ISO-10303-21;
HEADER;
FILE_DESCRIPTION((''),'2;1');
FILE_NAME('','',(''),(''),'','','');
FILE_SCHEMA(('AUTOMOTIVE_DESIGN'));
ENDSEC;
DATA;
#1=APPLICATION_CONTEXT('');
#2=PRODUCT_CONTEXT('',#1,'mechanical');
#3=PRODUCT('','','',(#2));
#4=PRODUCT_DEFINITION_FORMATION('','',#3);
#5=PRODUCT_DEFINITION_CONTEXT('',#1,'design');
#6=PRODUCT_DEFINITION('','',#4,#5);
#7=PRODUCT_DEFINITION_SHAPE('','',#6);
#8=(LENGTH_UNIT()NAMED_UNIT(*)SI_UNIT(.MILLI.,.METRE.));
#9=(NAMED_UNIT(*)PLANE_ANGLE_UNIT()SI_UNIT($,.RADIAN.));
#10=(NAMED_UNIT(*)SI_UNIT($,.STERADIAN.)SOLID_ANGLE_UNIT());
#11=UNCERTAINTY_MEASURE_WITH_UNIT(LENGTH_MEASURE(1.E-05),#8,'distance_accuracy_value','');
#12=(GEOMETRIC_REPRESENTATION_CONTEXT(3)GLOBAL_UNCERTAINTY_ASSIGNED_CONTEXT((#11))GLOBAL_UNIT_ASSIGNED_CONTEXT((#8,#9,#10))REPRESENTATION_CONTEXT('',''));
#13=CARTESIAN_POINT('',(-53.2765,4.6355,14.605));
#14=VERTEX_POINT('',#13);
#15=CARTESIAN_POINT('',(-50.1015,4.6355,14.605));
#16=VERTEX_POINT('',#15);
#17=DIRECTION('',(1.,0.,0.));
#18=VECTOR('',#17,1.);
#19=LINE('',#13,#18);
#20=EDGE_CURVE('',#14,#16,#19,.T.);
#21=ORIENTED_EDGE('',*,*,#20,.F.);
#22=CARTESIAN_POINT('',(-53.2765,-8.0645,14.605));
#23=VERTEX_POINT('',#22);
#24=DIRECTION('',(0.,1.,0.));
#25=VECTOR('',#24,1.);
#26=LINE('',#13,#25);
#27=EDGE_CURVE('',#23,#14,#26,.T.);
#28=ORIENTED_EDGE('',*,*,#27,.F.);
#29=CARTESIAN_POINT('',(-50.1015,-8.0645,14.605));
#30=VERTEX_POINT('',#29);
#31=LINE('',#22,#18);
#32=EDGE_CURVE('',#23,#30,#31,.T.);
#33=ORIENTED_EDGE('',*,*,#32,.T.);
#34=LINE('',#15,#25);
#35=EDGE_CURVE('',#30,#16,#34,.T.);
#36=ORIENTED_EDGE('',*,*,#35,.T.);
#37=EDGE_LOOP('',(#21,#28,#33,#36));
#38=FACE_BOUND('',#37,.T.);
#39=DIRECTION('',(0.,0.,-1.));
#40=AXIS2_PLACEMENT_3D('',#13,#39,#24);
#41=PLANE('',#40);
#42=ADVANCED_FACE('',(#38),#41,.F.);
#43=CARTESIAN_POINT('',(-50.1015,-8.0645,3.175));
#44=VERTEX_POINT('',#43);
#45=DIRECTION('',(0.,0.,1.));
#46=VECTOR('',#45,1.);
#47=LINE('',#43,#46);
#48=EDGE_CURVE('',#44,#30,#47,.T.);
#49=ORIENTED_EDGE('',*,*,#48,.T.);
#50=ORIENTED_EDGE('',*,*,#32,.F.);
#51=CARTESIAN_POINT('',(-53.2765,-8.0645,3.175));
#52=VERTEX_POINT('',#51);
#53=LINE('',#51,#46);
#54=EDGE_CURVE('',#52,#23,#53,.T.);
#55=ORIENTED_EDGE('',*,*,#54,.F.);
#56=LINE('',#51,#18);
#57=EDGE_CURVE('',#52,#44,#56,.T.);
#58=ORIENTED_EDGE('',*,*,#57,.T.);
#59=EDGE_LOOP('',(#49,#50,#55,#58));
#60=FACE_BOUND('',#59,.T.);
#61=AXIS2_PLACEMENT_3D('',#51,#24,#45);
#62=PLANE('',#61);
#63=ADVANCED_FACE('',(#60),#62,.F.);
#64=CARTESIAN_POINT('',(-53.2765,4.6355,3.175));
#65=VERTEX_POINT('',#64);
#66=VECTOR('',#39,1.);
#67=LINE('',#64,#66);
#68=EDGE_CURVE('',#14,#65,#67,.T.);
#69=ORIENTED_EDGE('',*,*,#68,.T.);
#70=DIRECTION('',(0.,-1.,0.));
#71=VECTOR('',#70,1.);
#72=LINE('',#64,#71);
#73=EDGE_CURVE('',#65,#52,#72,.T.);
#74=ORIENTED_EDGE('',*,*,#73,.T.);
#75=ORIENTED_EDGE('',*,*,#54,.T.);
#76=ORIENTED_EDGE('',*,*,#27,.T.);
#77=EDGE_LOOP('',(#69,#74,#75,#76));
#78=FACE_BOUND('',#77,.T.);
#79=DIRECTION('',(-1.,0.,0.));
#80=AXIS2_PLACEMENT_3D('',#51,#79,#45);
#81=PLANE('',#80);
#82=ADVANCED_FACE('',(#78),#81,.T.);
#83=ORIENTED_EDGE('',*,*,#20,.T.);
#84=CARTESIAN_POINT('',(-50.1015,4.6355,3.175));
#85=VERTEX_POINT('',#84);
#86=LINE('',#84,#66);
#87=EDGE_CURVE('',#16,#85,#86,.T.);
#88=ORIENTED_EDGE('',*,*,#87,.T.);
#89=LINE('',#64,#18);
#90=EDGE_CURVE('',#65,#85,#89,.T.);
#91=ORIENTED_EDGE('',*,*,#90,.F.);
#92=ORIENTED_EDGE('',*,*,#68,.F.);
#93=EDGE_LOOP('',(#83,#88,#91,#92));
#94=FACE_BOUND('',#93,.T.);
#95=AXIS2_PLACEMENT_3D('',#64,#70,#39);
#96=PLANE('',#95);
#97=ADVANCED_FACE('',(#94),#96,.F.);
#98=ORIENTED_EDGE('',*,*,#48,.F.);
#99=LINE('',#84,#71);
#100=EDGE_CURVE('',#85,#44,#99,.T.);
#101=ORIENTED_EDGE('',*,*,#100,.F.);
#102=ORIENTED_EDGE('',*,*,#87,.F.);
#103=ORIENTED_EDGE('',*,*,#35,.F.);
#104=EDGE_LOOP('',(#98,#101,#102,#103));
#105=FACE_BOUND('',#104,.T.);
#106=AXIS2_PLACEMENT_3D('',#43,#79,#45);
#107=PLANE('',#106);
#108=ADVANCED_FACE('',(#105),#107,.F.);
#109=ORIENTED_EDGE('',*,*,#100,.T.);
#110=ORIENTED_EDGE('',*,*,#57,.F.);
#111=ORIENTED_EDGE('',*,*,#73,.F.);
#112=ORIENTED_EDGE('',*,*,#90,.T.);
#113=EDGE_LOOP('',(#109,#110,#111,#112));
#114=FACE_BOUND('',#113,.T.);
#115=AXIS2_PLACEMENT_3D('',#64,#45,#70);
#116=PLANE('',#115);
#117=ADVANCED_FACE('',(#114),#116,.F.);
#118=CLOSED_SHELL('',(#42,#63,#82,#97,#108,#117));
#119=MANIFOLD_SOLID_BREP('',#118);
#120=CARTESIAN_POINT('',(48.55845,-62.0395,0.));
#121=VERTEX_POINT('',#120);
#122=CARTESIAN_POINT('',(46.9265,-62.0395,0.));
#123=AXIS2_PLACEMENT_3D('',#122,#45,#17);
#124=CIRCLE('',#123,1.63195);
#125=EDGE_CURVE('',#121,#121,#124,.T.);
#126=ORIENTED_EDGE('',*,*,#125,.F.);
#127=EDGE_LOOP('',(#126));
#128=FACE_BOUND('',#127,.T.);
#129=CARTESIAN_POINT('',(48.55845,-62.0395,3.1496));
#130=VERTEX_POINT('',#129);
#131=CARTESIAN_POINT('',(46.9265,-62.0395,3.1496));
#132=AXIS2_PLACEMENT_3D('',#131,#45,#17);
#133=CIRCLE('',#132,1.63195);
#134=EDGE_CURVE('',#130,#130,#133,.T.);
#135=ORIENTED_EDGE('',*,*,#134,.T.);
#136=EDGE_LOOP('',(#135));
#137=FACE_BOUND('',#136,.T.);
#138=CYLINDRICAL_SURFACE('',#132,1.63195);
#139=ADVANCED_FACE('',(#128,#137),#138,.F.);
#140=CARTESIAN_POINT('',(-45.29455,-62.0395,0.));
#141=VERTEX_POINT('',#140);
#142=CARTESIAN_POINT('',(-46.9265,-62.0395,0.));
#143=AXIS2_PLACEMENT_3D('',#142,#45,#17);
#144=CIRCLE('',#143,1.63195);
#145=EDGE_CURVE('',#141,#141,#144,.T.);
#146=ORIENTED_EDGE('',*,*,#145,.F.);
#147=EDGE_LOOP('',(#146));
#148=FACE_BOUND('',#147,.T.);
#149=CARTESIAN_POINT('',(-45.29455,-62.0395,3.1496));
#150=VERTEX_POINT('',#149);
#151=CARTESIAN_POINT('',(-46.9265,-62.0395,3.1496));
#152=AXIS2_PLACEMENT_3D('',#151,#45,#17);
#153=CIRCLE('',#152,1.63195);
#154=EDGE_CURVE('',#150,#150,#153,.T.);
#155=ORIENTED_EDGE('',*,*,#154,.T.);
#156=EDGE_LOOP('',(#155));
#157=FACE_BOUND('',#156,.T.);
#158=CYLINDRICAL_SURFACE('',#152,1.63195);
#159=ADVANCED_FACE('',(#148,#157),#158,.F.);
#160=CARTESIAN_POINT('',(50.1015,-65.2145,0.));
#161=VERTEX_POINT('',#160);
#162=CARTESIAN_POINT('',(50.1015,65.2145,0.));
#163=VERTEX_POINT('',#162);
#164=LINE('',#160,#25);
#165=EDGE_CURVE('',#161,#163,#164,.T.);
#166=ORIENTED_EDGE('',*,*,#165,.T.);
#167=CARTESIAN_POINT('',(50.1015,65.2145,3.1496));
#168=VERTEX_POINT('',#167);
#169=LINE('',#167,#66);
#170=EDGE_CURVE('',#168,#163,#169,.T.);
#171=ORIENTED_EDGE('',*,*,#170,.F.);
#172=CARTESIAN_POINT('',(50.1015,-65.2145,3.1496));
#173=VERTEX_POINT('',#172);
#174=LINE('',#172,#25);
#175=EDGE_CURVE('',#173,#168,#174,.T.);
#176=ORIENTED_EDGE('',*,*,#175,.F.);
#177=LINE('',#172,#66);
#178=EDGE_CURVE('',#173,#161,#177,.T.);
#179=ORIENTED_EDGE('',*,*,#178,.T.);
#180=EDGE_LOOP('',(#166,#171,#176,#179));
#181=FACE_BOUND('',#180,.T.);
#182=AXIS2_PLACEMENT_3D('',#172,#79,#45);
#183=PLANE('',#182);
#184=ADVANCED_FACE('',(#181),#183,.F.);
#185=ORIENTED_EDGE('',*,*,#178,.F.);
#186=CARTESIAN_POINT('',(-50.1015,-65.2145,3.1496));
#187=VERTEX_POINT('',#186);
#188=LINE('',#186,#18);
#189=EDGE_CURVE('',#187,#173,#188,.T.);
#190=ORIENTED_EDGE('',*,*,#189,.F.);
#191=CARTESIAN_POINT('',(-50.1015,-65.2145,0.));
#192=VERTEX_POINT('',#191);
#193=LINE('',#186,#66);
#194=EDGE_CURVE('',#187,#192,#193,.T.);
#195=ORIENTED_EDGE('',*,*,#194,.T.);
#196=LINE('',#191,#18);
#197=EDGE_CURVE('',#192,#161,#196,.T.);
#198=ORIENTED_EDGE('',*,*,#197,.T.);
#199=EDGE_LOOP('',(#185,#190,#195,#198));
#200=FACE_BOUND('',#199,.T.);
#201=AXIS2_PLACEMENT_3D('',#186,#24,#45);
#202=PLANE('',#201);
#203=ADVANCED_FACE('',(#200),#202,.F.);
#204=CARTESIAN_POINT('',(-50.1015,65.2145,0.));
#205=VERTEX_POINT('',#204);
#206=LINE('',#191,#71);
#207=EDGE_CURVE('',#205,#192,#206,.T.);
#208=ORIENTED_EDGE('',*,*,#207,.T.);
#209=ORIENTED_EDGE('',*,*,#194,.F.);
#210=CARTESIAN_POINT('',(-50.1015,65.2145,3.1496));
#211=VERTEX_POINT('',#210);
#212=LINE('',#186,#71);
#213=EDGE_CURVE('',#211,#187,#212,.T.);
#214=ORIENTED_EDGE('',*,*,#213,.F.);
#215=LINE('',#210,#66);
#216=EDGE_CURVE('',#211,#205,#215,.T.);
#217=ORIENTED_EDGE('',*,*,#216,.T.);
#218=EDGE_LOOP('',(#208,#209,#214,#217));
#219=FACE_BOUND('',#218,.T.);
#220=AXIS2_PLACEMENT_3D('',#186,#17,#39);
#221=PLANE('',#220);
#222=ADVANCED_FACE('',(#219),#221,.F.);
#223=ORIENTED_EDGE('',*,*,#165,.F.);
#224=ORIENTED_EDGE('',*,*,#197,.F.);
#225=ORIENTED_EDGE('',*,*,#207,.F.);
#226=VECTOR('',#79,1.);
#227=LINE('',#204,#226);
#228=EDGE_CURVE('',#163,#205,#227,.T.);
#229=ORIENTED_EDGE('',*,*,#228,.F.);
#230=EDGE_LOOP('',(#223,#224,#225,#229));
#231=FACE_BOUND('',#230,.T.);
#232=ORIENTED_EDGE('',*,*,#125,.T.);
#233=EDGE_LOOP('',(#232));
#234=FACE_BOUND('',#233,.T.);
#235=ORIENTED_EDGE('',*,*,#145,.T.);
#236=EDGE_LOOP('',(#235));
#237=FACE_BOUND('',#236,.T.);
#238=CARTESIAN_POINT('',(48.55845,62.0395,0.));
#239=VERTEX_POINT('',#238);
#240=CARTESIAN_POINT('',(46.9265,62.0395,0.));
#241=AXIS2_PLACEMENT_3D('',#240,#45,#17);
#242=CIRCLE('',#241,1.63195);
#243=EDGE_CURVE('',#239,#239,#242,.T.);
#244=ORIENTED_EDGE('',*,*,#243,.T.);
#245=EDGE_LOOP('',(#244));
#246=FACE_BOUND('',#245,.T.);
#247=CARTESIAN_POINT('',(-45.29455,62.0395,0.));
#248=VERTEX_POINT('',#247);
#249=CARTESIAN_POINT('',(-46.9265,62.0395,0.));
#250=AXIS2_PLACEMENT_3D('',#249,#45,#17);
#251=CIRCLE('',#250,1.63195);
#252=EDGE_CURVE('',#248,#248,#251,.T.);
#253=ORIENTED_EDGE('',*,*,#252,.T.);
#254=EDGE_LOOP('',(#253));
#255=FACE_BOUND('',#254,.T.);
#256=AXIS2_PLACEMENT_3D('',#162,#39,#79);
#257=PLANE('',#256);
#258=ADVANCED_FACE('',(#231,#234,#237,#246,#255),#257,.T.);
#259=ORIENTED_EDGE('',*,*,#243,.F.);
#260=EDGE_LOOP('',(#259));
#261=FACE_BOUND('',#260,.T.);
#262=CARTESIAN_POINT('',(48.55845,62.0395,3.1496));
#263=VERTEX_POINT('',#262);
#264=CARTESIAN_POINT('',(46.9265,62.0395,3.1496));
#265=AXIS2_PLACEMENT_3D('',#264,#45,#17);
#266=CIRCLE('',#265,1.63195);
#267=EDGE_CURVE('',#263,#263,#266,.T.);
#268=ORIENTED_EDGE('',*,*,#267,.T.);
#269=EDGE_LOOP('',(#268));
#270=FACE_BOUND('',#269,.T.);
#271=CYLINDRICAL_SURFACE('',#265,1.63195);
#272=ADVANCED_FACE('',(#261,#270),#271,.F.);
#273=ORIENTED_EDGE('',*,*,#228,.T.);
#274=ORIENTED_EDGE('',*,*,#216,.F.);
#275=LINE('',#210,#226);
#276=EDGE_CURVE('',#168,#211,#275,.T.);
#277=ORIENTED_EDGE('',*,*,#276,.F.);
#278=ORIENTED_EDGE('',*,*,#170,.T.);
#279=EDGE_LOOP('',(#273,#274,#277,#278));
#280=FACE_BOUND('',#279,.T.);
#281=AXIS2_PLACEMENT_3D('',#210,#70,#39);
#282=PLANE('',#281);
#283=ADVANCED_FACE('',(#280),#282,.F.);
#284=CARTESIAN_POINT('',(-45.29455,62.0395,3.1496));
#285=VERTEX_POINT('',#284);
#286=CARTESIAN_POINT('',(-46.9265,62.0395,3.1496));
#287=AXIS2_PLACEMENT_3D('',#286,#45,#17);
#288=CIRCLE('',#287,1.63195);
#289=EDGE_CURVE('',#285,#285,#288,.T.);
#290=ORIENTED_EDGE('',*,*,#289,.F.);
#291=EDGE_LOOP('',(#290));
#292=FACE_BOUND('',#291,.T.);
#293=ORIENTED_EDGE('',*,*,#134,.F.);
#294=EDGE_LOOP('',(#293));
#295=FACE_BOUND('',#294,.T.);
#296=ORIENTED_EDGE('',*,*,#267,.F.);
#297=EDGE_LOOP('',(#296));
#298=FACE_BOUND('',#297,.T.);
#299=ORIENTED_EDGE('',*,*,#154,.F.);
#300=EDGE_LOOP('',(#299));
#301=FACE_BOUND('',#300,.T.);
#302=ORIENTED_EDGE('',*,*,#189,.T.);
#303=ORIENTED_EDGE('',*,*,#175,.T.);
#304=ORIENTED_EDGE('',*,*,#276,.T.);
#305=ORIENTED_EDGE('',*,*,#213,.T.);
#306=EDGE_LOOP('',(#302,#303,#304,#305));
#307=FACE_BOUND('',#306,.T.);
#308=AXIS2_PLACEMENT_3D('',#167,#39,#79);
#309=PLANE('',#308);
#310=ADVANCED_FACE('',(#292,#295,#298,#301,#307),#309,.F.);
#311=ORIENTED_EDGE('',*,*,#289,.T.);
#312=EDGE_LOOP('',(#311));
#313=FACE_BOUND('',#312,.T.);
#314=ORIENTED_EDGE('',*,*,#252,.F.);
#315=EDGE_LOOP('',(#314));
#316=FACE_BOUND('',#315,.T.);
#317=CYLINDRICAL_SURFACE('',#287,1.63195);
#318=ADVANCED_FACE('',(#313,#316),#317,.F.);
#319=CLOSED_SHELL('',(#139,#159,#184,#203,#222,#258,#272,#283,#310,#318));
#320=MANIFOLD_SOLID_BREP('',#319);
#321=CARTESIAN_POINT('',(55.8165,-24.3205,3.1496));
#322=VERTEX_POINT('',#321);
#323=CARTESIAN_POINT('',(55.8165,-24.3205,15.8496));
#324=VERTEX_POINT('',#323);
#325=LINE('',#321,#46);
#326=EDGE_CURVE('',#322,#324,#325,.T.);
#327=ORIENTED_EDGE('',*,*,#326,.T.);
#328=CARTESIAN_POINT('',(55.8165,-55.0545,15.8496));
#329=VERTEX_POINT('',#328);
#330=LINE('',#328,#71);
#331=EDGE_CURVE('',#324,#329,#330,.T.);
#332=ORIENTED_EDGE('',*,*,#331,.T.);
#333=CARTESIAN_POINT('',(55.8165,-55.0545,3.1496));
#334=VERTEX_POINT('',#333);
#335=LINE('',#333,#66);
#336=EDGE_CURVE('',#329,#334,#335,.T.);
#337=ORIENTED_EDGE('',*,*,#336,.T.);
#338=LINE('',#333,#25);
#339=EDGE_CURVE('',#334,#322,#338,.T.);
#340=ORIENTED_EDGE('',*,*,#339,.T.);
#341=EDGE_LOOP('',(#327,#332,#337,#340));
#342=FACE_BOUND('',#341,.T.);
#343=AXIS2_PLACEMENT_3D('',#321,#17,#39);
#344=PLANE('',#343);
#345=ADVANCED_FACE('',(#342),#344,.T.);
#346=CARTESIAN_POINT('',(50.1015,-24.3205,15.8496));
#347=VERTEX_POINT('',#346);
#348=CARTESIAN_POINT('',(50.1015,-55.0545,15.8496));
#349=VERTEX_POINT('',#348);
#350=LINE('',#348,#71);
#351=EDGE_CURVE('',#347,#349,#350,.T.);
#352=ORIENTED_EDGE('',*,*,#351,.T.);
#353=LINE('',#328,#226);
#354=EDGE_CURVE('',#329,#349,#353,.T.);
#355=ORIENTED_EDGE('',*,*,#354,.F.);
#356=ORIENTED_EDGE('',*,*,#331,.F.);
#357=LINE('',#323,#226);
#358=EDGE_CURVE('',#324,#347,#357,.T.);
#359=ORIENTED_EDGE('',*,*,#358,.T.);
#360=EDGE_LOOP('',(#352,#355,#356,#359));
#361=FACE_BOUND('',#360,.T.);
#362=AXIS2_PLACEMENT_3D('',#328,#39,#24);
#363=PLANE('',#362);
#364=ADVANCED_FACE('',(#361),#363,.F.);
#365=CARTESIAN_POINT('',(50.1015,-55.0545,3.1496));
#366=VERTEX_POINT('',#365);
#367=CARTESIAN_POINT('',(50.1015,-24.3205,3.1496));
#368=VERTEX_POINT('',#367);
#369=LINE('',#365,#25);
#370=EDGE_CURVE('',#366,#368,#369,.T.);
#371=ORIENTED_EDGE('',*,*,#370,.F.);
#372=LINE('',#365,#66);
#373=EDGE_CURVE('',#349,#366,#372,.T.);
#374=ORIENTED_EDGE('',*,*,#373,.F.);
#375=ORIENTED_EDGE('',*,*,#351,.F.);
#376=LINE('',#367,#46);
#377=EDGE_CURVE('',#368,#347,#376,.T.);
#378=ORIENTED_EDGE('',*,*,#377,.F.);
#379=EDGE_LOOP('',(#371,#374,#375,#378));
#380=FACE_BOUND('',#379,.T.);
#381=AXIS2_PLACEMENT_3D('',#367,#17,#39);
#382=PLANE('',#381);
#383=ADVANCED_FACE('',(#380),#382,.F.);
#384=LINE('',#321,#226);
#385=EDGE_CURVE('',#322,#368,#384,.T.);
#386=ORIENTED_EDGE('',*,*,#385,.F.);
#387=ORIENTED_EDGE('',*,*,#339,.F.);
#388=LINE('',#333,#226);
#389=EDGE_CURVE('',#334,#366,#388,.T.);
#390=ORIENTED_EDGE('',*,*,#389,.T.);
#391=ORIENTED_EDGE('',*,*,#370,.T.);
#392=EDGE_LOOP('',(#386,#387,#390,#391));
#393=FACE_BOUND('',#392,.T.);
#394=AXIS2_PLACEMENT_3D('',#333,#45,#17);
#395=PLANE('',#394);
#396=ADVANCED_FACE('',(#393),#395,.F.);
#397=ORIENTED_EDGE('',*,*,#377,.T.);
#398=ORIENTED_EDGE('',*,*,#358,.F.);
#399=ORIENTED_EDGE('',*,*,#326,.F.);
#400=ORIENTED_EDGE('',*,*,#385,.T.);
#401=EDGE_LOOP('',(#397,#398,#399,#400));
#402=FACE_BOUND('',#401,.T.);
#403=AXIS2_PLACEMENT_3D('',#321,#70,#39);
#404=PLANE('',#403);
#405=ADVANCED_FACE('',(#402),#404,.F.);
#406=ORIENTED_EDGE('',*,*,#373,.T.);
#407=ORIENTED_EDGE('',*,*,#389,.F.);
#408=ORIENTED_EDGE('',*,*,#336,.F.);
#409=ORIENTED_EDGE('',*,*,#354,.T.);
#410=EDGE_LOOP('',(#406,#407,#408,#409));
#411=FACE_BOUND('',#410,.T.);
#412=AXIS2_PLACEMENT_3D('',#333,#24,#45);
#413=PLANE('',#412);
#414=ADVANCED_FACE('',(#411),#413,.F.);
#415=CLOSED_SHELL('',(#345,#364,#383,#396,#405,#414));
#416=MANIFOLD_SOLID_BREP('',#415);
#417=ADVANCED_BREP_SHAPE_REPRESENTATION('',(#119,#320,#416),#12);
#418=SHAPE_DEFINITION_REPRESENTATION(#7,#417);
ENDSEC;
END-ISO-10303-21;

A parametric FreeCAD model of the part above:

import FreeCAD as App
import Part
import Sketcher
from FreeCAD import Vector
Q = App.Units.Quantity


def add_polygon(sketch, points):
    """Adds a closed chain of lines whose ends are joined by coincident constraints."""
    first, n = sketch.GeometryCount, len(points)
    for a, b in zip(points, points[1:] + points[:1]):
        sketch.addGeometry(Part.LineSegment(App.Vector(*a, 0), App.Vector(*b, 0)), False)
    for i in range(n):
        sketch.addConstraint(Sketcher.Constraint("Coincident", first + i, 2, first + (i + 1) % n, 1))

doc = App.newDocument("Part")
body = doc.addObject("PartDesign::Body", "Body")

# Sketch on XY plane
sketch1 = body.newObject("Sketcher::SketchObject", "Sketch")
sketch1.AttachmentSupport = (doc.getObject("XY_Plane"), [""])
sketch1.MapMode = "FlatFace"
add_polygon(sketch1, [(-50.1015, 65.2145), (-50.1015, -65.2145), (50.1015, -65.2145), (50.1015, 65.2145)])  # lines 0-3
sketch1.addConstraint(Sketcher.Constraint("Vertical", 0))
sketch1.addConstraint(Sketcher.Constraint("Horizontal", 1))
sketch1.addConstraint(Sketcher.Constraint("Vertical", 2))
sketch1.addConstraint(Sketcher.Constraint("Horizontal", 3))
sketch1.addConstraint(Sketcher.Constraint("Symmetric", 0, 2, 2, 2, -1, 1))
sketch1.addConstraint(Sketcher.Constraint("DistanceX", 1, 1, 1, 2, Q("3.945 in")))
sketch1.addConstraint(Sketcher.Constraint("DistanceY", 0, 2, 0, 1, Q("5.135 in")))
pad1 = body.newObject("PartDesign::Pad", "Pad")
pad1.Profile = sketch1
pad1.Length = Q("0.124 in")

# Sketch on YZ plane
sketch2 = body.newObject("Sketcher::SketchObject", "Sketch001")
sketch2.AttachmentSupport = (doc.getObject("YZ_Plane"), [""])
sketch2.MapMode = "FlatFace"
sketch2.AttachmentOffset = App.Placement(Vector(0, 0, -1.8475 * 25.4), App.Rotation())
add_polygon(sketch2, [(62.0395, 0), (62.0395, 3.1496), (60.40755, 3.1496), (60.40755, 0)])  # lines 0-3
sketch2.addGeometry(Part.LineSegment(Vector(62.0395, 3.1496, 0), Vector(62.0395, 0, 0)), True)  # axis
sketch2.addConstraint(Sketcher.Constraint("Vertical", 0))
sketch2.addConstraint(Sketcher.Constraint("Horizontal", 1))
sketch2.addConstraint(Sketcher.Constraint("Vertical", 2))
sketch2.addConstraint(Sketcher.Constraint("Horizontal", 3))
sketch2.addConstraint(Sketcher.Constraint("Vertical", 4))
sketch2.addConstraint(Sketcher.Constraint("Coincident", 4, 1, 0, 2))
sketch2.addConstraint(Sketcher.Constraint("PointOnObject", 2, 2, -1))
sketch2.addConstraint(Sketcher.Constraint("PointOnObject", 4, 2, -1))
sketch2.addConstraint(Sketcher.Constraint("DistanceY", 0, 1, 0, 2, Q("0.124 in")))
sketch2.addConstraint(Sketcher.Constraint("DistanceX", -1, 1, 0, 2, Q("2.4425 in")))
sketch2.addConstraint(Sketcher.Constraint("DistanceX", 1, 2, 1, 1, 1.63195))
groove = body.newObject("PartDesign::Groove", "Groove")
groove.Profile = sketch2
groove.ReferenceAxis = (sketch2, ["Axis0"])
groove.Angle = 360
doc.recompute()

linearpattern = body.newObject("PartDesign::LinearPattern", "LinearPattern")
linearpattern.Originals = [groove]
linearpattern.Direction = (doc.getObject("Y_Axis"), [""])
linearpattern.Mode = "offset"
linearpattern.Offset = Q("4.885 in")
linearpattern.Occurrences = 2
linearpattern.Reversed = True
body.Tip = linearpattern
doc.recompute()

mirrored = body.newObject("PartDesign::Mirrored", "Mirrored")
mirrored.Originals = [groove]
mirrored.MirrorPlane = (doc.getObject("YZ_Plane"), [""])
body.Tip = mirrored

# Sketch on YZ plane
sketch3 = body.newObject("Sketcher::SketchObject", "Sketch002")
sketch3.AttachmentSupport = (doc.getObject("YZ_Plane"), [""])
sketch3.MapMode = "FlatFace"
sketch3.AttachmentOffset = App.Placement(Vector(0, 0, 1.8475 * 25.4), App.Rotation())
add_polygon(sketch3, [(-62.0395, 3.1496), (-62.0395, 0), (-63.67145, 0), (-63.67145, 3.1496)])  # lines 0-3
sketch3.addGeometry(Part.LineSegment(Vector(-62.0395, 0, 0), Vector(-62.0395, 3.1496, 0)), True)  # axis
sketch3.addConstraint(Sketcher.Constraint("Vertical", 0))
sketch3.addConstraint(Sketcher.Constraint("Horizontal", 1))
sketch3.addConstraint(Sketcher.Constraint("Vertical", 2))
sketch3.addConstraint(Sketcher.Constraint("Horizontal", 3))
sketch3.addConstraint(Sketcher.Constraint("Vertical", 4))
sketch3.addConstraint(Sketcher.Constraint("Coincident", 4, 1, 0, 2))
sketch3.addConstraint(Sketcher.Constraint("PointOnObject", 0, 2, -1))
sketch3.addConstraint(Sketcher.Constraint("Horizontal", 2, 2, 4, 2))
sketch3.addConstraint(Sketcher.Constraint("DistanceY", 0, 2, 0, 1, Q("0.124 in")))
sketch3.addConstraint(Sketcher.Constraint("DistanceX", 0, 2, -1, 1, Q("2.4425 in")))
sketch3.addConstraint(Sketcher.Constraint("DistanceX", 1, 2, 1, 1, 1.63195))
groove2 = body.newObject("PartDesign::Groove", "Groove001")
groove2.Profile = sketch3
groove2.ReferenceAxis = (sketch3, ["Axis0"])
groove2.Angle = 360
body2 = doc.addObject("PartDesign::Body", "Body001")

# Sketch on YZ plane
sketch4 = body2.newObject("Sketcher::SketchObject", "Sketch003")
sketch4.AttachmentSupport = (doc.getObject("YZ_Plane001"), [""])
sketch4.MapMode = "FlatFace"
sketch4.AttachmentOffset = App.Placement(Vector(0, 0, -1.9725 * 25.4), App.Rotation())
add_polygon(sketch4, [(4.6355, 3.175), (-8.0645, 3.175), (-8.0645, 14.605), (4.6355, 14.605)])  # lines 0-3
sketch4.addConstraint(Sketcher.Constraint("Horizontal", 0))
sketch4.addConstraint(Sketcher.Constraint("Vertical", 1))
sketch4.addConstraint(Sketcher.Constraint("Horizontal", 2))
sketch4.addConstraint(Sketcher.Constraint("Vertical", 3))
sketch4.addConstraint(Sketcher.Constraint("DistanceX", 0, 2, 0, 1, Q("0.5 in")))
sketch4.addConstraint(Sketcher.Constraint("DistanceY", 1, 1, 1, 2, Q("0.45 in")))
sketch4.addConstraint(Sketcher.Constraint("DistanceY", -1, 1, 0, 2, Q("0.125 in")))
sketch4.addConstraint(Sketcher.Constraint("DistanceX", 0, 2, -1, 1, Q("0.3175 in")))
pad2 = body2.newObject("PartDesign::Pad", "Pad001")
pad2.Profile = sketch4
pad2.Length = Q("0.125 in")
pad2.Reversed = True
body3 = doc.addObject("PartDesign::Body", "Body002")

# Sketch on YZ plane
sketch5 = body3.newObject("Sketcher::SketchObject", "Sketch004")
sketch5.AttachmentSupport = (doc.getObject("YZ_Plane002"), [""])
sketch5.MapMode = "FlatFace"
sketch5.AttachmentOffset = App.Placement(Vector(0, 0, 1.9725 * 25.4), App.Rotation())
add_polygon(sketch5, [(-24.3205, 15.8496), (-55.0545, 15.8496), (-55.0545, 3.1496), (-24.3205, 3.1496)])  # lines 0-3
sketch5.addConstraint(Sketcher.Constraint("Horizontal", 0))
sketch5.addConstraint(Sketcher.Constraint("Vertical", 1))
sketch5.addConstraint(Sketcher.Constraint("Horizontal", 2))
sketch5.addConstraint(Sketcher.Constraint("Vertical", 3))
sketch5.addConstraint(Sketcher.Constraint("DistanceY", 1, 2, 1, 1, Q("0.5 in")))
sketch5.addConstraint(Sketcher.Constraint("DistanceX", 0, 2, 0, 1, Q("1.21 in")))
sketch5.addConstraint(Sketcher.Constraint("DistanceY", -1, 1, 0, 2, Q("0.624 in")))
sketch5.addConstraint(Sketcher.Constraint("DistanceX", 0, 2, -1, 1, Q("2.1675 in")))
pad3 = body3.newObject("PartDesign::Pad", "Pad002")
pad3.Profile = sketch5
pad3.Length = Q("0.225 in")

doc.recompute()
